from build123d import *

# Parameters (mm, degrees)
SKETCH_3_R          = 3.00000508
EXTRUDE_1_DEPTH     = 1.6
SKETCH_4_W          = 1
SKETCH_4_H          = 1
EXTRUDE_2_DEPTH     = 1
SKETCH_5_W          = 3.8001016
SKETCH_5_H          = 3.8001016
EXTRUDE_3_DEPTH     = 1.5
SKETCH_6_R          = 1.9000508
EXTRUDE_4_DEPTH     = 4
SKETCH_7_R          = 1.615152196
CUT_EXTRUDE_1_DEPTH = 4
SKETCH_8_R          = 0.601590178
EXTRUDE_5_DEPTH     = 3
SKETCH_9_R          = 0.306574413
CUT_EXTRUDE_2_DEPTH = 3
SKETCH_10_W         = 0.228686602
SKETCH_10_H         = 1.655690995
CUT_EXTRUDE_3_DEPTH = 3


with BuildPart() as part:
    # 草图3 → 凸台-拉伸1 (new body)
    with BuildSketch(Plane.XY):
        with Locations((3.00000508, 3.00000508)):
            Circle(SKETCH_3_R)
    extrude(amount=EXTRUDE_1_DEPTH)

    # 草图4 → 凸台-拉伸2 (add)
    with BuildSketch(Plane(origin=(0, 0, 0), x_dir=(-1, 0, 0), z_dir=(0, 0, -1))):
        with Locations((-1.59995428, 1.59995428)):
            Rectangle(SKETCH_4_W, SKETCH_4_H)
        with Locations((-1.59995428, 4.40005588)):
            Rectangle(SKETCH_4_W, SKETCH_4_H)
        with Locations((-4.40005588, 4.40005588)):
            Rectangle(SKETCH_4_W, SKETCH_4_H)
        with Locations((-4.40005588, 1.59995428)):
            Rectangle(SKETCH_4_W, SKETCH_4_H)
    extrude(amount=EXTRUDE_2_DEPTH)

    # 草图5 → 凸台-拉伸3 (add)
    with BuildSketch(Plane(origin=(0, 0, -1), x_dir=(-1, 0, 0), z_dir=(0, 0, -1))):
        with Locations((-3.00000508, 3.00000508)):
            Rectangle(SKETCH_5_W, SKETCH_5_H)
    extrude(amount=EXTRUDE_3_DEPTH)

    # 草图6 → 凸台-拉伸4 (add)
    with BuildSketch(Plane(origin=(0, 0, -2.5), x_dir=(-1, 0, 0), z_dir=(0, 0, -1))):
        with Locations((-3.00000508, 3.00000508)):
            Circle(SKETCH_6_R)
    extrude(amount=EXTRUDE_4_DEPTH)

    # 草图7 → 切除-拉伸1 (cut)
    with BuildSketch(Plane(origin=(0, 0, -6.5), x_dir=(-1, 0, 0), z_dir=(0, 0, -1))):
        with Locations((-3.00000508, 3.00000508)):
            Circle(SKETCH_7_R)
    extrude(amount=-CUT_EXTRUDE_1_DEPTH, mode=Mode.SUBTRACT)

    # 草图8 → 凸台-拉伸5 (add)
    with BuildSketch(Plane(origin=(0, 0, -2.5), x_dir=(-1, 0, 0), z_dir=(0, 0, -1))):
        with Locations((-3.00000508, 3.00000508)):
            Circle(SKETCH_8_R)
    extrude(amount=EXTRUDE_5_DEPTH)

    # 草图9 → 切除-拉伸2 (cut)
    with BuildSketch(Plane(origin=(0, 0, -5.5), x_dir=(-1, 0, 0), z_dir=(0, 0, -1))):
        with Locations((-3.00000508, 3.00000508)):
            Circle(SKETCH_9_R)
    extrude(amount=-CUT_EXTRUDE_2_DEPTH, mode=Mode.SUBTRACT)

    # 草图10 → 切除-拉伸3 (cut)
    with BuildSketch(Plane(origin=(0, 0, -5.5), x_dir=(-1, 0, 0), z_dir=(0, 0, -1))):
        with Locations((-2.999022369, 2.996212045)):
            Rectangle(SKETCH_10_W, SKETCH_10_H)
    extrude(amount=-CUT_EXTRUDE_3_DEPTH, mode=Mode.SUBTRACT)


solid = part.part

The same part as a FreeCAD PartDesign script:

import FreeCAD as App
import Part
import Sketcher

V = App.Vector

doc = App.newDocument("Part")
body = doc.addObject("PartDesign::Body", "Body")

# Sketch on XY plane
sketch1 = body.newObject("Sketcher::SketchObject", "Sketch")
sketch1.AttachmentSupport = (doc.getObject("XY_Plane"), [""])
sketch1.MapMode = "FlatFace"
sketch1.addGeometry(Part.Circle(V(3, 3, 0), V(0, 0, 1), 3), False)
sketch1.addConstraint([
    Sketcher.Constraint("Diameter", 0, 6.00001),
    Sketcher.Constraint("DistanceX", -1, 1, 0, 3, 3.000005),
    Sketcher.Constraint("DistanceY", -1, 1, 0, 3, 3.000005),
])
pad1 = body.newObject("PartDesign::Pad", "Pad")
pad1.Profile = sketch1
pad1.Length = 1.6

# Sketch on XY plane
sketch2 = body.newObject("Sketcher::SketchObject", "Sketch001")
sketch2.AttachmentSupport = (doc.getObject("XY_Plane"), [""])
sketch2.MapMode = "FlatFace"
sketch2.addGeometry([
    Part.LineSegment(V(2.1, 2.1, 0), V(2.1, 1.1, 0)),  # 0
    Part.LineSegment(V(2.1, 1.1, 0), V(1.1, 1.1, 0)),  # 1
    Part.LineSegment(V(1.1, 1.1, 0), V(1.1, 2.1, 0)),  # 2
    Part.LineSegment(V(1.1, 2.1, 0), V(2.1, 2.1, 0)),  # 3
    Part.LineSegment(V(2.1, 4.9, 0), V(2.1, 3.9, 0)),  # 4
    Part.LineSegment(V(2.1, 3.9, 0), V(1.1, 3.9, 0)),  # 5
    Part.LineSegment(V(1.1, 3.9, 0), V(1.1, 4.9, 0)),  # 6
    Part.LineSegment(V(1.1, 4.9, 0), V(2.1, 4.9, 0)),  # 7
    Part.LineSegment(V(4.9, 4.9, 0), V(4.9, 3.9, 0)),  # 8
    Part.LineSegment(V(4.9, 3.9, 0), V(3.9, 3.9, 0)),  # 9
    Part.LineSegment(V(3.9, 3.9, 0), V(3.9, 4.9, 0)),  # 10
    Part.LineSegment(V(3.9, 4.9, 0), V(4.9, 4.9, 0)),  # 11
    Part.LineSegment(V(4.9, 2.1, 0), V(4.9, 1.1, 0)),  # 12
    Part.LineSegment(V(4.9, 1.1, 0), V(3.9, 1.1, 0)),  # 13
    Part.LineSegment(V(3.9, 1.1, 0), V(3.9, 2.1, 0)),  # 14
    Part.LineSegment(V(3.9, 2.1, 0), V(4.9, 2.1, 0)),  # 15
], False)
sketch2.addConstraint([
    Sketcher.Constraint("Coincident", 0, 2, 1, 1),
    Sketcher.Constraint("Coincident", 1, 2, 2, 1),
    Sketcher.Constraint("Coincident", 2, 2, 3, 1),
    Sketcher.Constraint("Coincident", 3, 2, 0, 1),
    Sketcher.Constraint("Coincident", 4, 2, 5, 1),
    Sketcher.Constraint("Coincident", 5, 2, 6, 1),
    Sketcher.Constraint("Coincident", 6, 2, 7, 1),
    Sketcher.Constraint("Coincident", 7, 2, 4, 1),
    Sketcher.Constraint("Coincident", 8, 2, 9, 1),
    Sketcher.Constraint("Coincident", 9, 2, 10, 1),
    Sketcher.Constraint("Coincident", 10, 2, 11, 1),
    Sketcher.Constraint("Coincident", 11, 2, 8, 1),
    Sketcher.Constraint("Coincident", 12, 2, 13, 1),
    Sketcher.Constraint("Coincident", 13, 2, 14, 1),
    Sketcher.Constraint("Coincident", 14, 2, 15, 1),
    Sketcher.Constraint("Coincident", 15, 2, 12, 1),
    Sketcher.Constraint("Vertical", 0),
    Sketcher.Constraint("Horizontal", 1),
    Sketcher.Constraint("Vertical", 2),
    Sketcher.Constraint("Horizontal", 3),
    Sketcher.Constraint("Vertical", 4),
    Sketcher.Constraint("Horizontal", 5),
    Sketcher.Constraint("Vertical", 6),
    Sketcher.Constraint("Horizontal", 7),
    Sketcher.Constraint("Vertical", 8),
    Sketcher.Constraint("Horizontal", 9),
    Sketcher.Constraint("Vertical", 10),
    Sketcher.Constraint("Horizontal", 11),
    Sketcher.Constraint("Vertical", 12),
    Sketcher.Constraint("Horizontal", 13),
    Sketcher.Constraint("Vertical", 14),
    Sketcher.Constraint("Horizontal", 15),
    Sketcher.Constraint("Horizontal", 5, 2, 8, 2),
    Sketcher.Constraint("Horizontal", 7, 2, 10, 2),
    Sketcher.Constraint("Horizontal", 1, 2, 12, 2),
    Sketcher.Constraint("Horizontal", 3, 2, 14, 2),
    Sketcher.Constraint("Vertical", 3, 2, 4, 2),
    Sketcher.Constraint("Vertical", 2, 2, 5, 2),
    Sketcher.Constraint("Vertical", 11, 2, 12, 2),
    Sketcher.Constraint("Vertical", 10, 2, 13, 2),
    Sketcher.Constraint("Equal", 7, 9),
    Sketcher.Constraint("Equal", 15, 0),
    Sketcher.Constraint("Equal", 2, 4),
    Sketcher.Constraint("DistanceX", 1, 2, 1, 1, 1.0),
    Sketcher.Constraint("DistanceY", 3, 2, 4, 2, 1.800102),
    Sketcher.Constraint("DistanceX", 4, 2, 8, 2, 2.800102),
    Sketcher.Constraint("DistanceX", -1, 1, 0, 2, 2.099954),
    Sketcher.Constraint("DistanceY", -1, 1, 0, 2, 1.099954),
])
pad2 = body.newObject("PartDesign::Pad", "Pad001")
pad2.Profile = sketch2
pad2.Length = 1
pad2.Reversed = True

# Sketch on XY plane
sketch3 = body.newObject("Sketcher::SketchObject", "Sketch002")
sketch3.AttachmentSupport = (doc.getObject("XY_Plane"), [""])
sketch3.MapMode = "FlatFace"
sketch3.AttachmentOffset = App.Placement(V(0, 0, -1), App.Rotation())
sketch3.addGeometry([
    Part.LineSegment(V(4.9, 4.9, 0), V(4.9, 1.1, 0)),
    Part.LineSegment(V(4.9, 1.1, 0), V(1.1, 1.1, 0)),
    Part.LineSegment(V(1.1, 1.1, 0), V(1.1, 4.9, 0)),
    Part.LineSegment(V(1.1, 4.9, 0), V(4.9, 4.9, 0)),
], False)
sketch3.addConstraint([
    Sketcher.Constraint("Coincident", 0, 2, 1, 1),
    Sketcher.Constraint("Coincident", 1, 2, 2, 1),
    Sketcher.Constraint("Coincident", 2, 2, 3, 1),
    Sketcher.Constraint("Coincident", 3, 2, 0, 1),
    Sketcher.Constraint("Vertical", 0),
    Sketcher.Constraint("Horizontal", 1),
    Sketcher.Constraint("Vertical", 2),
    Sketcher.Constraint("Horizontal", 3),
    Sketcher.Constraint("Equal", 3, 0),
    Sketcher.Constraint("DistanceX", 1, 2, 1, 1, 3.800102),
    Sketcher.Constraint("DistanceX", -1, 1, 0, 2, 4.900056),
    Sketcher.Constraint("DistanceY", -1, 1, 0, 2, 1.099954),
])
pad3 = body.newObject("PartDesign::Pad", "Pad002")
pad3.Profile = sketch3
pad3.Length = 1.5
pad3.Reversed = True

# Sketch on XY plane
sketch4 = body.newObject("Sketcher::SketchObject", "Sketch003")
sketch4.AttachmentSupport = (doc.getObject("XY_Plane"), [""])
sketch4.MapMode = "FlatFace"
sketch4.AttachmentOffset = App.Placement(V(0, 0, -2.5), App.Rotation())
sketch4.addGeometry(Part.Circle(V(3, 3, 0), V(0, 0, 1), 1.9), False)
sketch4.addConstraint([
    Sketcher.Constraint("Diameter", 0, 3.800102),
    Sketcher.Constraint("DistanceX", -1, 1, 0, 3, 3.000005),
    Sketcher.Constraint("DistanceY", -1, 1, 0, 3, 3.000005),
])
pad4 = body.newObject("PartDesign::Pad", "Pad003")
pad4.Profile = sketch4
pad4.Length = 4
pad4.Reversed = True

# Sketch on XY plane
sketch5 = body.newObject("Sketcher::SketchObject", "Sketch004")
sketch5.AttachmentSupport = (doc.getObject("XY_Plane"), [""])
sketch5.MapMode = "FlatFace"
sketch5.AttachmentOffset = App.Placement(V(0, 0, -6.5), App.Rotation())
sketch5.addGeometry(Part.Circle(V(3, 3, 0), V(0, 0, 1), 1.6), False)
sketch5.addConstraint([
    Sketcher.Constraint("Diameter", 0, 3.230304),
    Sketcher.Constraint("DistanceX", -1, 1, 0, 3, 3.000005),
    Sketcher.Constraint("DistanceY", -1, 1, 0, 3, 3.000005),
])
pocket1 = body.newObject("PartDesign::Pocket", "Pocket")
pocket1.Profile = sketch5
pocket1.Length = 4
pocket1.Reversed = True

# Sketch on XY plane
sketch6 = body.newObject("Sketcher::SketchObject", "Sketch005")
sketch6.AttachmentSupport = (doc.getObject("XY_Plane"), [""])
sketch6.MapMode = "FlatFace"
sketch6.AttachmentOffset = App.Placement(V(0, 0, -2.5), App.Rotation())
sketch6.addGeometry(Part.Circle(V(3, 3, 0), V(0, 0, 1), 0.6), False)
sketch6.addConstraint([
    Sketcher.Constraint("Diameter", 0, 1.20318),
    Sketcher.Constraint("DistanceX", -1, 1, 0, 3, 3.000005),
    Sketcher.Constraint("DistanceY", -1, 1, 0, 3, 3.000005),
])
pad5 = body.newObject("PartDesign::Pad", "Pad004")
pad5.Profile = sketch6
pad5.Length = 3
pad5.Reversed = True

# Sketch on XY plane
sketch7 = body.newObject("Sketcher::SketchObject", "Sketch006")
sketch7.AttachmentSupport = (doc.getObject("XY_Plane"), [""])
sketch7.MapMode = "FlatFace"
sketch7.AttachmentOffset = App.Placement(V(0, 0, -5.5), App.Rotation())
sketch7.addGeometry(Part.Circle(V(3, 3, 0), V(0, 0, 1), 0.31), False)
sketch7.addConstraint([
    Sketcher.Constraint("Diameter", 0, 0.613149),
    Sketcher.Constraint("DistanceX", -1, 1, 0, 3, 3.000005),
    Sketcher.Constraint("DistanceY", -1, 1, 0, 3, 3.000005),
])
pocket2 = body.newObject("PartDesign::Pocket", "Pocket001")
pocket2.Profile = sketch7
pocket2.Length = 3
pocket2.Reversed = True

# Sketch on XY plane
sketch8 = body.newObject("Sketcher::SketchObject", "Sketch007")
sketch8.AttachmentSupport = (doc.getObject("XY_Plane"), [""])
sketch8.MapMode = "FlatFace"
sketch8.AttachmentOffset = App.Placement(V(0, 0, -5.5), App.Rotation())
sketch8.addGeometry([
    Part.LineSegment(V(3.11, 3.82, 0), V(3.11, 2.17, 0)),
    Part.LineSegment(V(3.11, 2.17, 0), V(2.88, 2.17, 0)),
    Part.LineSegment(V(2.88, 2.17, 0), V(2.88, 3.82, 0)),
    Part.LineSegment(V(2.88, 3.82, 0), V(3.11, 3.82, 0)),
], False)
sketch8.addConstraint([
    Sketcher.Constraint("Coincident", 0, 2, 1, 1),
    Sketcher.Constraint("Coincident", 1, 2, 2, 1),
    Sketcher.Constraint("Coincident", 2, 2, 3, 1),
    Sketcher.Constraint("Coincident", 3, 2, 0, 1),
    Sketcher.Constraint("Vertical", 0),
    Sketcher.Constraint("Horizontal", 1),
    Sketcher.Constraint("Vertical", 2),
    Sketcher.Constraint("Horizontal", 3),
    Sketcher.Constraint("DistanceY", 0, 2, 0, 1, 1.655691),
    Sketcher.Constraint("DistanceX", 1, 2, 1, 1, 0.228687),
    Sketcher.Constraint("DistanceX", -1, 1, 1, 2, 2.884679),
    Sketcher.Constraint("DistanceY", -1, 1, 0, 2, 2.168367),
])
pocket3 = body.newObject("PartDesign::Pocket", "Pocket002")
pocket3.Profile = sketch8
pocket3.Length = 3
pocket3.Reversed = True

doc.recompute()
